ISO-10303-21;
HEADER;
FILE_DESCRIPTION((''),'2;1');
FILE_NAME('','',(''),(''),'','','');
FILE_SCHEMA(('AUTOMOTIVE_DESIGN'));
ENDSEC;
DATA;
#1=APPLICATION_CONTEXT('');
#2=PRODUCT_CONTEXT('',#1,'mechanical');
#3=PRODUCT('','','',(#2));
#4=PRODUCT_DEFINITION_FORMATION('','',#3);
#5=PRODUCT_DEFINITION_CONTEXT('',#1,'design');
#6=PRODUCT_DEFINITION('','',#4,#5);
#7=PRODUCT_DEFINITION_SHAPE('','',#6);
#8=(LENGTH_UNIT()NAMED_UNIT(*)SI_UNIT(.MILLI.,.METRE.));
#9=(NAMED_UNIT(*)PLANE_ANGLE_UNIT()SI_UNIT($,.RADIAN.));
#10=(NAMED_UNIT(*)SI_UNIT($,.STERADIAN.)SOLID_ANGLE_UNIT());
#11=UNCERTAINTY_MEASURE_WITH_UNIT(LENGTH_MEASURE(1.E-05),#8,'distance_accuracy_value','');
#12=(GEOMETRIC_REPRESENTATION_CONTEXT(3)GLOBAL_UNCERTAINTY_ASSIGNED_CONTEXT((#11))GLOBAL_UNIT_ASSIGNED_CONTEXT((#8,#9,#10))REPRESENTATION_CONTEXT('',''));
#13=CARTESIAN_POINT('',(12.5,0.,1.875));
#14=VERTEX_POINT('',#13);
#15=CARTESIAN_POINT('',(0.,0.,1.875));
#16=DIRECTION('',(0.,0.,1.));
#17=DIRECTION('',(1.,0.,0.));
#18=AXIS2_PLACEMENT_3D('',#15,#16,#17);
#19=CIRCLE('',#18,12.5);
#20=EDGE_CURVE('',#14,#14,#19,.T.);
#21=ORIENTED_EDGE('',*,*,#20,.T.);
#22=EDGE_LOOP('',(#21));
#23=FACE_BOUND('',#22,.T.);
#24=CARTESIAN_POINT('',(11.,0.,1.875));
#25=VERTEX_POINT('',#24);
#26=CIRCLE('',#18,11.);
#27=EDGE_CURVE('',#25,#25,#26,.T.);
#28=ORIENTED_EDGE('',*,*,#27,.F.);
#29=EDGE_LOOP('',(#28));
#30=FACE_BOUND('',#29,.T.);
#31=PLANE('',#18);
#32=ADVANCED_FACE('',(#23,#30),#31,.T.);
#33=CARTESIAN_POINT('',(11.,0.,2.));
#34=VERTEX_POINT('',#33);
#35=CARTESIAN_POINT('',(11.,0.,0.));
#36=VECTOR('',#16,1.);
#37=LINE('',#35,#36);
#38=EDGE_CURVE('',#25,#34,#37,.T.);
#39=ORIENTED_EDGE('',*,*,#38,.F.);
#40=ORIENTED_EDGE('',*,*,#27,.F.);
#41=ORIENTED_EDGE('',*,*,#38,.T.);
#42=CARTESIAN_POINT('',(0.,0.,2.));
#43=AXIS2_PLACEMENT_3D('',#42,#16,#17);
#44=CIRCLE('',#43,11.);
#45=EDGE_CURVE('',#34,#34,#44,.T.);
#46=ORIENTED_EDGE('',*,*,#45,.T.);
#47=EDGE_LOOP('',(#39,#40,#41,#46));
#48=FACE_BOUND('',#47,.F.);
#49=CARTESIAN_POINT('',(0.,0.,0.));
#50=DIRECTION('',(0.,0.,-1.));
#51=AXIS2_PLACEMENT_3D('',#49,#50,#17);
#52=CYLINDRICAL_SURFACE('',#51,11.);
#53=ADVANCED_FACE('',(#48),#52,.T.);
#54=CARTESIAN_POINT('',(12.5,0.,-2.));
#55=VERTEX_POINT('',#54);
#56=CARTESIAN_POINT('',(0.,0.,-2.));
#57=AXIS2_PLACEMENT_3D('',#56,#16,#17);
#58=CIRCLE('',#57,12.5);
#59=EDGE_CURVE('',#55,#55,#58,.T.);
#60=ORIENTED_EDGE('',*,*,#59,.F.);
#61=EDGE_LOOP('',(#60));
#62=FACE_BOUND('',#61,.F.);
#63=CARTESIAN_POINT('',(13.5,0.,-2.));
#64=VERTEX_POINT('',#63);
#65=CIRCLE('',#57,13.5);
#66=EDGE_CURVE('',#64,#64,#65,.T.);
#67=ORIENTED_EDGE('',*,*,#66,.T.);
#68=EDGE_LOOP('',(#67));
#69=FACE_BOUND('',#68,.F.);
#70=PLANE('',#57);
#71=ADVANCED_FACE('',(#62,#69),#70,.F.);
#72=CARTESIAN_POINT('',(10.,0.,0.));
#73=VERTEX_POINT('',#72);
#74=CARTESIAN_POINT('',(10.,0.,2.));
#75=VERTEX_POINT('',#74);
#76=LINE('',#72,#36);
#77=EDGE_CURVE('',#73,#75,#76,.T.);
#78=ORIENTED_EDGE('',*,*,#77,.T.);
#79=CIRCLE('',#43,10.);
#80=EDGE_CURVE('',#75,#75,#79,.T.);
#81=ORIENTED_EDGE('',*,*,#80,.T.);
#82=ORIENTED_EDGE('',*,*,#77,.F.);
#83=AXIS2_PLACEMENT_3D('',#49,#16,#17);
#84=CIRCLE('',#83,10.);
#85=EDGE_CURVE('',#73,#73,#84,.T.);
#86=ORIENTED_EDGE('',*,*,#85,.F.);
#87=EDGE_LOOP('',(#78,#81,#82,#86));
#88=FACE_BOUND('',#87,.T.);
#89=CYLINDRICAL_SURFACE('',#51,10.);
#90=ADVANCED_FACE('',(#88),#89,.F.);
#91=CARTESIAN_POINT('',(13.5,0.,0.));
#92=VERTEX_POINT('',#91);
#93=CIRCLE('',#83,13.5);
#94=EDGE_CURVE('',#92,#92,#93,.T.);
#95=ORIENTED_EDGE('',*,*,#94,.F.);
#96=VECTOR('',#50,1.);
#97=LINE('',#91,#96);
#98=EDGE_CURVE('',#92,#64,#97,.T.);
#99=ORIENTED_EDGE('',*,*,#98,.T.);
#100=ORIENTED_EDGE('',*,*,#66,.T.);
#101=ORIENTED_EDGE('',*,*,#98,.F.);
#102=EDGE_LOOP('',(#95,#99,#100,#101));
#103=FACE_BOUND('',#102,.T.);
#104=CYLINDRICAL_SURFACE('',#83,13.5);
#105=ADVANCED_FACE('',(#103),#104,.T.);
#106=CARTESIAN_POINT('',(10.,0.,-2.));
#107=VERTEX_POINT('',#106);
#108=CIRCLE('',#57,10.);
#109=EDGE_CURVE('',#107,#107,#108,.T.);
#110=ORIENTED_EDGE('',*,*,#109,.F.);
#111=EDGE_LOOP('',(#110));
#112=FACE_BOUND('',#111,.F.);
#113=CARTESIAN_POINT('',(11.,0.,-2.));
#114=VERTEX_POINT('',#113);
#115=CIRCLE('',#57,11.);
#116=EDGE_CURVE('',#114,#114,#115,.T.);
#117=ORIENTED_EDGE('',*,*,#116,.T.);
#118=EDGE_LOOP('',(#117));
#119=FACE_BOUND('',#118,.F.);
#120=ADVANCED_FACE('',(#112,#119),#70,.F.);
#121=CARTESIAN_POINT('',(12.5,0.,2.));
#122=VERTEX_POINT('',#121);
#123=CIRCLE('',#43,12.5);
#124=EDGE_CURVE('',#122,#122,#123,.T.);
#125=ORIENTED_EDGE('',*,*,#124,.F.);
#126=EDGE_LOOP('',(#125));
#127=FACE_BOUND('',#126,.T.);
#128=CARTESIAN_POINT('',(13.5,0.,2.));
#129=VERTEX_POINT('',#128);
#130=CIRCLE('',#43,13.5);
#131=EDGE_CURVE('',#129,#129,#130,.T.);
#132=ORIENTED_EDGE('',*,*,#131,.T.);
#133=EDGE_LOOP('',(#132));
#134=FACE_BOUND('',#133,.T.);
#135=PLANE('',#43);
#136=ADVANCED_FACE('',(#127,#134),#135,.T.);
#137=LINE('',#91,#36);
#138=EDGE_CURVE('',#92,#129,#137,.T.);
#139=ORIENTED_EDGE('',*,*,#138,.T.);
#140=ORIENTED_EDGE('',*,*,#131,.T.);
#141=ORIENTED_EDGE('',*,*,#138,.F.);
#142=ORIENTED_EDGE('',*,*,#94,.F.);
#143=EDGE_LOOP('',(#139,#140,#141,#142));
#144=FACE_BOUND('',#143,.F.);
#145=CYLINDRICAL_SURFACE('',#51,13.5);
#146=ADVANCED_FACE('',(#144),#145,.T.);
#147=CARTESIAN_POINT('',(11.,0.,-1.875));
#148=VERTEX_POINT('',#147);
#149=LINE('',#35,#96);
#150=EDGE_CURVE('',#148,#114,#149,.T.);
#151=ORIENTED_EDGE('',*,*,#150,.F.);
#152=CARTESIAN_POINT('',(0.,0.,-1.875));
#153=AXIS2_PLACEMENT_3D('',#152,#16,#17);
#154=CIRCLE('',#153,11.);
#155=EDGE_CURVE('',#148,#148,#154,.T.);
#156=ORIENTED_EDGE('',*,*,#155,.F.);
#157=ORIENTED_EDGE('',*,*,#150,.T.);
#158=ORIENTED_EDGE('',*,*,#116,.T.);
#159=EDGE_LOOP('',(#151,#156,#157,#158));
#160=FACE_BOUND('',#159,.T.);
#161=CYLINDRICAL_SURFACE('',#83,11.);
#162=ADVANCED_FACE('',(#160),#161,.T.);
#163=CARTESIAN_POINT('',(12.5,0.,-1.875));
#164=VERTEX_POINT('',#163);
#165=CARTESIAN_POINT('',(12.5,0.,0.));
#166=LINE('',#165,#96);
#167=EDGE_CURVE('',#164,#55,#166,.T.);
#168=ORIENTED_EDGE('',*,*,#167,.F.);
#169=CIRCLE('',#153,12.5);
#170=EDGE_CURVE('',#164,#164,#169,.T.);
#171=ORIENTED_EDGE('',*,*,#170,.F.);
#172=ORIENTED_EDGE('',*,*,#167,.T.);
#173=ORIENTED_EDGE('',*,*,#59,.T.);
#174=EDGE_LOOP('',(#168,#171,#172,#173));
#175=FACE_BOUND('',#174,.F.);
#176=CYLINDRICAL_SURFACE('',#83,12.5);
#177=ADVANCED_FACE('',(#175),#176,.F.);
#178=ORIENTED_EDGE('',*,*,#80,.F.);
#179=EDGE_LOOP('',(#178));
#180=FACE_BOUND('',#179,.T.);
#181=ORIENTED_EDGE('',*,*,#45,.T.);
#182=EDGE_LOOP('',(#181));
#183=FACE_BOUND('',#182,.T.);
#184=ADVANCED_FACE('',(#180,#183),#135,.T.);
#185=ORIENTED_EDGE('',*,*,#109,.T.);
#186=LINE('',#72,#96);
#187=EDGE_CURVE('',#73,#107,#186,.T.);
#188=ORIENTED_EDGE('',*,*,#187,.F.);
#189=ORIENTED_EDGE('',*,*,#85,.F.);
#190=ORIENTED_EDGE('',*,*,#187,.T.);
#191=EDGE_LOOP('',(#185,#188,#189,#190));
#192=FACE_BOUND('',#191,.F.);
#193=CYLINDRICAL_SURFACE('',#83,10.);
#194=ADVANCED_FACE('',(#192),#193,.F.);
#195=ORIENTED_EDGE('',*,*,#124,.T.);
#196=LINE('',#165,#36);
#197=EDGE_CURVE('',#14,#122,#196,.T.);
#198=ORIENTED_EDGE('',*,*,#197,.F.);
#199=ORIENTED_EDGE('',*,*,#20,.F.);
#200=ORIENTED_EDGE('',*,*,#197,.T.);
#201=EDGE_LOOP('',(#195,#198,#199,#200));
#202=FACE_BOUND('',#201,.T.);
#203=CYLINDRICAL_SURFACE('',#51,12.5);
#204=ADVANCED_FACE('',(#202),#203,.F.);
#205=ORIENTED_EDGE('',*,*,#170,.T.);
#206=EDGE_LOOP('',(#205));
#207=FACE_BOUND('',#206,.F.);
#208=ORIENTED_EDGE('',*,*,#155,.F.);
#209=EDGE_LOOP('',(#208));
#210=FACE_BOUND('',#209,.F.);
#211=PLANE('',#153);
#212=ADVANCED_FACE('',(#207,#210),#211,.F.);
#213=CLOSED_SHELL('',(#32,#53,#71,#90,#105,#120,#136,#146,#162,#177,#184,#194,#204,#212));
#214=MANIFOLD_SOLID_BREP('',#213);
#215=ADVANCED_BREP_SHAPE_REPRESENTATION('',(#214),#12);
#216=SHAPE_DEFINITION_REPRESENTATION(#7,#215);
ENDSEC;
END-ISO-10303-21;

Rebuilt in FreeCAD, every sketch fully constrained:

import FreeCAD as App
import Part
import Sketcher
from FreeCAD import Vector

doc = App.newDocument("Part")
params = doc.addObject("Spreadsheet::Sheet", "Params")
for row, (alias, value) in enumerate([
    ("sketch1_diameter", "27 mm"),
    ("sketch1_diameter2", "20 mm"),
    ("sketch1_diameter3", "25 mm"),
    ("sketch1_diameter4", "22 mm"),
    ("pad1_length", "4 mm"),
    ("sketch2_diameter", "25 mm"),
    ("sketch2_diameter2", "22 mm"),
    ("pad2_length", "3.75 mm"),
], start=1):
    params.set(f"A{row}", alias)
    params.set(f"B{row}", "=" + value)
    params.setAlias(f"B{row}", alias)

body = doc.addObject("PartDesign::Body", "Body")
body.AllowCompound = True

# Sketch on XY plane
sketch1 = body.newObject("Sketcher::SketchObject", "Sketch")
sketch1.AttachmentSupport = (doc.getObject("XY_Plane"), [""])
sketch1.MapMode = "FlatFace"
sketch1.addGeometry([
    Part.Circle(Vector(0, 0, 0), Vector(0, 0, 1), 14),
    Part.Circle(Vector(0, 0, 0), Vector(0, 0, 1), 12),
    Part.Circle(Vector(0, 0, 0), Vector(0, 0, 1), 11),
    Part.Circle(Vector(0, 0, 0), Vector(0, 0, 1), 10),
], False)
sketch1.addConstraint([
    Sketcher.Constraint("Coincident", 0, 3, -1, 1),
    Sketcher.Constraint("Coincident", 1, 3, -1, 1),
    Sketcher.Constraint("Coincident", 2, 3, -1, 1),
    Sketcher.Constraint("Coincident", 3, 3, -1, 1),
    Sketcher.Constraint("Diameter", 0, 27.0),
    Sketcher.Constraint("Diameter", 3, 20.0),
    Sketcher.Constraint("Diameter", 1, 25.0),
    Sketcher.Constraint("Diameter", 2, 22.0),
])
sketch1.setExpression("Constraints[4]", "Params.sketch1_diameter")
sketch1.setExpression("Constraints[5]", "Params.sketch1_diameter2")
sketch1.setExpression("Constraints[6]", "Params.sketch1_diameter3")
sketch1.setExpression("Constraints[7]", "Params.sketch1_diameter4")
pad1 = body.newObject("PartDesign::Pad", "Pad")
pad1.Profile = sketch1
pad1.setExpression("Length", "Params.pad1_length")
pad1.Midplane = True

# Sketch on XY plane
sketch2 = body.newObject("Sketcher::SketchObject", "Sketch001")
sketch2.AttachmentSupport = (doc.getObject("XY_Plane"), [""])
sketch2.MapMode = "FlatFace"
sketch2.addGeometry([
    Part.Circle(Vector(0, 0, 0), Vector(0, 0, 1), 12),
    Part.Circle(Vector(0, 0, 0), Vector(0, 0, 1), 11),
], False)
sketch2.addConstraint([
    Sketcher.Constraint("Coincident", 0, 3, -1, 1),
    Sketcher.Constraint("Coincident", 1, 3, -1, 1),
    Sketcher.Constraint("Diameter", 0, 25.0),
    Sketcher.Constraint("Diameter", 1, 22.0),
])
sketch2.setExpression("Constraints[2]", "Params.sketch2_diameter")
sketch2.setExpression("Constraints[3]", "Params.sketch2_diameter2")
pad2 = body.newObject("PartDesign::Pad", "Pad001")
pad2.Profile = sketch2
pad2.setExpression("Length", "Params.pad2_length")
pad2.Midplane = True

doc.recompute()
